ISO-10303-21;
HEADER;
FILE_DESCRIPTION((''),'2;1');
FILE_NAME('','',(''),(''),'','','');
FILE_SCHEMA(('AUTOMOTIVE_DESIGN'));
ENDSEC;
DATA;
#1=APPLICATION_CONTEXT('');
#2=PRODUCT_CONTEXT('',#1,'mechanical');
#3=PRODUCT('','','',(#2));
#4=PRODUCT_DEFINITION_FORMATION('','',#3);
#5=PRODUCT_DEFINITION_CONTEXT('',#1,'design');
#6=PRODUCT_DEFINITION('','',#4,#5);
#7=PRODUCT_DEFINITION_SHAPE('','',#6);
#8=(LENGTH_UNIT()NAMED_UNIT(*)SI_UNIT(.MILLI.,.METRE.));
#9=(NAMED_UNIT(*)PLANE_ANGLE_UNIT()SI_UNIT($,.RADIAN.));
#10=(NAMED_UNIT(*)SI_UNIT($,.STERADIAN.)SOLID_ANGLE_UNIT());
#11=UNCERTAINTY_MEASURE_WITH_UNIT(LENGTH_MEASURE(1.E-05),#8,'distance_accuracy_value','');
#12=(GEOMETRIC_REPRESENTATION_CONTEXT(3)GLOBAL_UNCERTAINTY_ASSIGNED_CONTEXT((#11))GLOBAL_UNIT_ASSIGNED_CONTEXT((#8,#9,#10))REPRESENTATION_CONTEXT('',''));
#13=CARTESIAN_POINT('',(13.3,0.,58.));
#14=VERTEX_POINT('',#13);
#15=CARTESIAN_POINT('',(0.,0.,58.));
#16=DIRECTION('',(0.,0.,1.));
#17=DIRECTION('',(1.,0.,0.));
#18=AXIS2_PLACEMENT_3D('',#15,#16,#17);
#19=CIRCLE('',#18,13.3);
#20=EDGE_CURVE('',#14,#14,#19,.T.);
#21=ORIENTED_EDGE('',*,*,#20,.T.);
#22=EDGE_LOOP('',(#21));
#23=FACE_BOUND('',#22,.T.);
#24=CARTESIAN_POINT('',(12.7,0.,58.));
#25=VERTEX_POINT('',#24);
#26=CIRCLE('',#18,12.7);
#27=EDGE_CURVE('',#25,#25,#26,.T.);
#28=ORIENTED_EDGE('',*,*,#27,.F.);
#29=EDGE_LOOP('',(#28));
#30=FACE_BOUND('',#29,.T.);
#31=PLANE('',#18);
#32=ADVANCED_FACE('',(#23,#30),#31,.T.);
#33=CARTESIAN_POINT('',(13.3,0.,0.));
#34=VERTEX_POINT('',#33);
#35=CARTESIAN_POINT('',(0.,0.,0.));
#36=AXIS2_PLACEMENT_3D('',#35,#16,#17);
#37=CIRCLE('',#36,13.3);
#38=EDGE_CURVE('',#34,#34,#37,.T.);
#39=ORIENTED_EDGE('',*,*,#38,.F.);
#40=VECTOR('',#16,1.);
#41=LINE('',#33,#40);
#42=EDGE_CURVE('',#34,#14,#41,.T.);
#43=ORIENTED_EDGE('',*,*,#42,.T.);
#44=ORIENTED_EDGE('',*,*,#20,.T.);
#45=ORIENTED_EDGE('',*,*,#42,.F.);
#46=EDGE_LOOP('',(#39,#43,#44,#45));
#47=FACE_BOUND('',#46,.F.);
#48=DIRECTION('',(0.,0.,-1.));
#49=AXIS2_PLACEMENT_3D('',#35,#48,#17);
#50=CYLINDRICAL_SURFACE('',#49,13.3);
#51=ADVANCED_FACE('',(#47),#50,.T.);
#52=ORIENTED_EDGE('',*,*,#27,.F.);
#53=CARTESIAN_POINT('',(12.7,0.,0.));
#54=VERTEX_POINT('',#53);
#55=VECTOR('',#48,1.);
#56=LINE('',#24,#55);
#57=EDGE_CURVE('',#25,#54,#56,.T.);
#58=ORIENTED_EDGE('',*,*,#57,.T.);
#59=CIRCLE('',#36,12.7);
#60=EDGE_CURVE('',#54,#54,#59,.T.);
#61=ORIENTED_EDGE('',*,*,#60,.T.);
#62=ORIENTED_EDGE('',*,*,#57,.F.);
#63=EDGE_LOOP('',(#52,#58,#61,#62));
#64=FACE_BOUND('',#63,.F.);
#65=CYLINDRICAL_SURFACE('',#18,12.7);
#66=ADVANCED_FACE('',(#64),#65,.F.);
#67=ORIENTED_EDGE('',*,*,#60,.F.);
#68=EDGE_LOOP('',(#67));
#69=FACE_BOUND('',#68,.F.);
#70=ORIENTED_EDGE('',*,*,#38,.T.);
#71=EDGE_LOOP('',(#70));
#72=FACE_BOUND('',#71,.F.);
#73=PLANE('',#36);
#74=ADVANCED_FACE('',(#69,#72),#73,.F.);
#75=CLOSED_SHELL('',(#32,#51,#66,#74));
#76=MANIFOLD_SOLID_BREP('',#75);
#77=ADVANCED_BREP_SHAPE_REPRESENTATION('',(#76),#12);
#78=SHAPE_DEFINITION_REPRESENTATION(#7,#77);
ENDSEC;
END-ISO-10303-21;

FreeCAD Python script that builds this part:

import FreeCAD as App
import Part
import Sketcher
Q = App.Units.Quantity

doc = App.newDocument("Part")
body = doc.addObject("PartDesign::Body", "Body")

sketch1 = doc.addObject("Sketcher::SketchObject", "Sketch")
body.addObject(sketch1)
sketch1.AttachmentSupport = (doc.XY_Plane, [""])
sketch1.MapMode = "FlatFace"
sketch1.addGeometry(Part.Circle(App.Vector(0, 0, 0), App.Vector(0, 0, 1), 13), False)
sketch1.addConstraint(Sketcher.Constraint("Coincident", 0, 3, -1, 1))
sketch1.addConstraint(Sketcher.Constraint("Diameter", 0, Q("26.6 mm")))
pad1 = doc.addObject("PartDesign::Pad", "Pad")
body.addObject(pad1)
pad1.Profile = sketch1
pad1.Length = 58

sketch2 = doc.addObject("Sketcher::SketchObject", "Sketch001")
body.addObject(sketch2)
sketch2.AttachmentSupport = (doc.XY_Plane, [""])
sketch2.MapMode = "FlatFace"
sketch2.AttachmentOffset = App.Placement(App.Vector(0, 0, 58), App.Rotation())
sketch2.addGeometry(Part.Circle(App.Vector(0, 0, 0), App.Vector(0, 0, 1), 13), False)
sketch2.addConstraint(Sketcher.Constraint("Coincident", 0, 3, -1, 1))
sketch2.addConstraint(Sketcher.Constraint("Diameter", 0, Q("25.4 mm")))
pocket1 = doc.addObject("PartDesign::Pocket", "Pocket")
body.addObject(pocket1)
pocket1.Profile = sketch2
pocket1.Length = 58

doc.recompute()
